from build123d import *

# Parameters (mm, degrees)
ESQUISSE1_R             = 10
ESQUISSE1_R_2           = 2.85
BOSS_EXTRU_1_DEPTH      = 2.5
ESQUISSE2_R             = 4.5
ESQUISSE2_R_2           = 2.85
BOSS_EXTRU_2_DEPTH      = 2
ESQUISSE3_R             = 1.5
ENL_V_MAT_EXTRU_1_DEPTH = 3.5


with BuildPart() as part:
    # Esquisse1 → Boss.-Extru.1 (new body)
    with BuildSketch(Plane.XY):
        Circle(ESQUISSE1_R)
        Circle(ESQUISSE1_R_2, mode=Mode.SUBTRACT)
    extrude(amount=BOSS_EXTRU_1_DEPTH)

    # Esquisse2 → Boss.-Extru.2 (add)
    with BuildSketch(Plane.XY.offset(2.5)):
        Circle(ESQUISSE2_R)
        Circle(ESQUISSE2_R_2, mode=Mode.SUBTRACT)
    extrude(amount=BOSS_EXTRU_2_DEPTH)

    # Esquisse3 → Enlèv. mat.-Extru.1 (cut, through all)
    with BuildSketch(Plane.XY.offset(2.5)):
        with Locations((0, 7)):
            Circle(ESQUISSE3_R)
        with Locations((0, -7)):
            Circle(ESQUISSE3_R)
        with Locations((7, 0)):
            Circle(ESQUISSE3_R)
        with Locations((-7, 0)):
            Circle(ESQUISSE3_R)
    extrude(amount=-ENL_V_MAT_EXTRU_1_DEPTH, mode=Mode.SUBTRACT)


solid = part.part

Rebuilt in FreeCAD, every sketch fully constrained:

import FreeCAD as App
import Part
import Sketcher
from FreeCAD import Vector
Q = App.Units.Quantity

doc = App.newDocument("Part")
params = doc.addObject("Spreadsheet::Sheet", "Params")
for row, (alias, value) in enumerate([
    ("sketch1_diameter", "20 mm"),
    ("sketch1_diameter2", "5.7 mm"),
    ("pad1_length", "2.5 mm"),
    ("sketch2_diameter", "9 mm"),
    ("sketch2_diameter2", "5.7 mm"),
    ("pad2_length", "2 mm"),
    ("sketch3_diameter", "3 mm"),
], start=1):
    params.set(f"A{row}", alias)
    params.set(f"B{row}", "=" + value)
    params.setAlias(f"B{row}", alias)

body = doc.addObject("PartDesign::Body", "Body")

sketch1 = body.newObject("Sketcher::SketchObject", "Sketch")
sketch1.AttachmentSupport = (doc.getObject("XY_Plane"), [""])
sketch1.MapMode = "FlatFace"
sketch1.addGeometry(Part.Circle(Vector(0, 0, 0), Vector(0, 0, 1), 10), False)
sketch1.addGeometry(Part.Circle(Vector(0, 0, 0), Vector(0, 0, 1), 2.9), False)
sketch1.addConstraint(Sketcher.Constraint("Coincident", 0, 3, -1, 1))
sketch1.addConstraint(Sketcher.Constraint("Coincident", 1, 3, -1, 1))
sketch1.addConstraint(Sketcher.Constraint("Diameter", 0, Q("20 mm")))
sketch1.addConstraint(Sketcher.Constraint("Diameter", 1, Q("5.7 mm")))
sketch1.setExpression("Constraints[2]", "Params.sketch1_diameter")
sketch1.setExpression("Constraints[3]", "Params.sketch1_diameter2")
pad1 = body.newObject("PartDesign::Pad", "Pad")
pad1.Profile = sketch1
pad1.setExpression("Length", "Params.pad1_length")

sketch2 = body.newObject("Sketcher::SketchObject", "Sketch001")
sketch2.AttachmentSupport = (doc.getObject("XY_Plane"), [""])
sketch2.MapMode = "FlatFace"
sketch2.AttachmentOffset = App.Placement(Vector(0, 0, 2.5), App.Rotation())
sketch2.addGeometry(Part.Circle(Vector(0, 0, 0), Vector(0, 0, 1), 4.5), False)
sketch2.addGeometry(Part.Circle(Vector(0, 0, 0), Vector(0, 0, 1), 2.9), False)
sketch2.addConstraint(Sketcher.Constraint("Coincident", 0, 3, -1, 1))
sketch2.addConstraint(Sketcher.Constraint("Coincident", 1, 3, -1, 1))
sketch2.addConstraint(Sketcher.Constraint("Diameter", 0, Q("9 mm")))
sketch2.addConstraint(Sketcher.Constraint("Diameter", 1, Q("5.7 mm")))
sketch2.setExpression("Constraints[2]", "Params.sketch2_diameter")
sketch2.setExpression("Constraints[3]", "Params.sketch2_diameter2")
pad2 = body.newObject("PartDesign::Pad", "Pad001")
pad2.Profile = sketch2
pad2.setExpression("Length", "Params.pad2_length")

sketch3 = body.newObject("Sketcher::SketchObject", "Sketch002")
sketch3.AttachmentSupport = (doc.getObject("XY_Plane"), [""])
sketch3.MapMode = "FlatFace"
sketch3.AttachmentOffset = App.Placement(Vector(0, 0, 2.5), App.Rotation())
sketch3.addGeometry(Part.Circle(Vector(0, 7, 0), Vector(0, 0, 1), 1.5), False)
sketch3.addGeometry(Part.Circle(Vector(0, -7, 0), Vector(0, 0, 1), 1.5), False)
sketch3.addGeometry(Part.Circle(Vector(7, 0, 0), Vector(0, 0, 1), 1.5), False)
sketch3.addGeometry(Part.Circle(Vector(-7, 0, 0), Vector(0, 0, 1), 1.5), False)
sketch3.addConstraint(Sketcher.Constraint("Equal", 0, 1))
sketch3.addConstraint(Sketcher.Constraint("Equal", 1, 2))
sketch3.addConstraint(Sketcher.Constraint("Equal", 2, 3))
sketch3.addConstraint(Sketcher.Constraint("Symmetric", 0, 3, 1, 3, -1, 1))
sketch3.addConstraint(Sketcher.Constraint("Symmetric", 2, 3, 3, 3, -1, 1))
sketch3.addConstraint(Sketcher.Constraint("PointOnObject", 0, 3, -2))
sketch3.addConstraint(Sketcher.Constraint("PointOnObject", 2, 3, -1))
sketch3.addConstraint(Sketcher.Constraint("Diameter", 0, Q("3 mm")))
sketch3.addConstraint(Sketcher.Constraint("DistanceY", -1, 1, 0, 3, Q("7 mm")))
sketch3.addConstraint(Sketcher.Constraint("DistanceX", -1, 1, 2, 3, Q("7 mm")))
sketch3.setExpression("Constraints[7]", "Params.sketch3_diameter")
pocket1 = body.newObject("PartDesign::Pocket", "Pocket")
pocket1.Profile = sketch3
pocket1.Type = "ThroughAll"

doc.recompute()
